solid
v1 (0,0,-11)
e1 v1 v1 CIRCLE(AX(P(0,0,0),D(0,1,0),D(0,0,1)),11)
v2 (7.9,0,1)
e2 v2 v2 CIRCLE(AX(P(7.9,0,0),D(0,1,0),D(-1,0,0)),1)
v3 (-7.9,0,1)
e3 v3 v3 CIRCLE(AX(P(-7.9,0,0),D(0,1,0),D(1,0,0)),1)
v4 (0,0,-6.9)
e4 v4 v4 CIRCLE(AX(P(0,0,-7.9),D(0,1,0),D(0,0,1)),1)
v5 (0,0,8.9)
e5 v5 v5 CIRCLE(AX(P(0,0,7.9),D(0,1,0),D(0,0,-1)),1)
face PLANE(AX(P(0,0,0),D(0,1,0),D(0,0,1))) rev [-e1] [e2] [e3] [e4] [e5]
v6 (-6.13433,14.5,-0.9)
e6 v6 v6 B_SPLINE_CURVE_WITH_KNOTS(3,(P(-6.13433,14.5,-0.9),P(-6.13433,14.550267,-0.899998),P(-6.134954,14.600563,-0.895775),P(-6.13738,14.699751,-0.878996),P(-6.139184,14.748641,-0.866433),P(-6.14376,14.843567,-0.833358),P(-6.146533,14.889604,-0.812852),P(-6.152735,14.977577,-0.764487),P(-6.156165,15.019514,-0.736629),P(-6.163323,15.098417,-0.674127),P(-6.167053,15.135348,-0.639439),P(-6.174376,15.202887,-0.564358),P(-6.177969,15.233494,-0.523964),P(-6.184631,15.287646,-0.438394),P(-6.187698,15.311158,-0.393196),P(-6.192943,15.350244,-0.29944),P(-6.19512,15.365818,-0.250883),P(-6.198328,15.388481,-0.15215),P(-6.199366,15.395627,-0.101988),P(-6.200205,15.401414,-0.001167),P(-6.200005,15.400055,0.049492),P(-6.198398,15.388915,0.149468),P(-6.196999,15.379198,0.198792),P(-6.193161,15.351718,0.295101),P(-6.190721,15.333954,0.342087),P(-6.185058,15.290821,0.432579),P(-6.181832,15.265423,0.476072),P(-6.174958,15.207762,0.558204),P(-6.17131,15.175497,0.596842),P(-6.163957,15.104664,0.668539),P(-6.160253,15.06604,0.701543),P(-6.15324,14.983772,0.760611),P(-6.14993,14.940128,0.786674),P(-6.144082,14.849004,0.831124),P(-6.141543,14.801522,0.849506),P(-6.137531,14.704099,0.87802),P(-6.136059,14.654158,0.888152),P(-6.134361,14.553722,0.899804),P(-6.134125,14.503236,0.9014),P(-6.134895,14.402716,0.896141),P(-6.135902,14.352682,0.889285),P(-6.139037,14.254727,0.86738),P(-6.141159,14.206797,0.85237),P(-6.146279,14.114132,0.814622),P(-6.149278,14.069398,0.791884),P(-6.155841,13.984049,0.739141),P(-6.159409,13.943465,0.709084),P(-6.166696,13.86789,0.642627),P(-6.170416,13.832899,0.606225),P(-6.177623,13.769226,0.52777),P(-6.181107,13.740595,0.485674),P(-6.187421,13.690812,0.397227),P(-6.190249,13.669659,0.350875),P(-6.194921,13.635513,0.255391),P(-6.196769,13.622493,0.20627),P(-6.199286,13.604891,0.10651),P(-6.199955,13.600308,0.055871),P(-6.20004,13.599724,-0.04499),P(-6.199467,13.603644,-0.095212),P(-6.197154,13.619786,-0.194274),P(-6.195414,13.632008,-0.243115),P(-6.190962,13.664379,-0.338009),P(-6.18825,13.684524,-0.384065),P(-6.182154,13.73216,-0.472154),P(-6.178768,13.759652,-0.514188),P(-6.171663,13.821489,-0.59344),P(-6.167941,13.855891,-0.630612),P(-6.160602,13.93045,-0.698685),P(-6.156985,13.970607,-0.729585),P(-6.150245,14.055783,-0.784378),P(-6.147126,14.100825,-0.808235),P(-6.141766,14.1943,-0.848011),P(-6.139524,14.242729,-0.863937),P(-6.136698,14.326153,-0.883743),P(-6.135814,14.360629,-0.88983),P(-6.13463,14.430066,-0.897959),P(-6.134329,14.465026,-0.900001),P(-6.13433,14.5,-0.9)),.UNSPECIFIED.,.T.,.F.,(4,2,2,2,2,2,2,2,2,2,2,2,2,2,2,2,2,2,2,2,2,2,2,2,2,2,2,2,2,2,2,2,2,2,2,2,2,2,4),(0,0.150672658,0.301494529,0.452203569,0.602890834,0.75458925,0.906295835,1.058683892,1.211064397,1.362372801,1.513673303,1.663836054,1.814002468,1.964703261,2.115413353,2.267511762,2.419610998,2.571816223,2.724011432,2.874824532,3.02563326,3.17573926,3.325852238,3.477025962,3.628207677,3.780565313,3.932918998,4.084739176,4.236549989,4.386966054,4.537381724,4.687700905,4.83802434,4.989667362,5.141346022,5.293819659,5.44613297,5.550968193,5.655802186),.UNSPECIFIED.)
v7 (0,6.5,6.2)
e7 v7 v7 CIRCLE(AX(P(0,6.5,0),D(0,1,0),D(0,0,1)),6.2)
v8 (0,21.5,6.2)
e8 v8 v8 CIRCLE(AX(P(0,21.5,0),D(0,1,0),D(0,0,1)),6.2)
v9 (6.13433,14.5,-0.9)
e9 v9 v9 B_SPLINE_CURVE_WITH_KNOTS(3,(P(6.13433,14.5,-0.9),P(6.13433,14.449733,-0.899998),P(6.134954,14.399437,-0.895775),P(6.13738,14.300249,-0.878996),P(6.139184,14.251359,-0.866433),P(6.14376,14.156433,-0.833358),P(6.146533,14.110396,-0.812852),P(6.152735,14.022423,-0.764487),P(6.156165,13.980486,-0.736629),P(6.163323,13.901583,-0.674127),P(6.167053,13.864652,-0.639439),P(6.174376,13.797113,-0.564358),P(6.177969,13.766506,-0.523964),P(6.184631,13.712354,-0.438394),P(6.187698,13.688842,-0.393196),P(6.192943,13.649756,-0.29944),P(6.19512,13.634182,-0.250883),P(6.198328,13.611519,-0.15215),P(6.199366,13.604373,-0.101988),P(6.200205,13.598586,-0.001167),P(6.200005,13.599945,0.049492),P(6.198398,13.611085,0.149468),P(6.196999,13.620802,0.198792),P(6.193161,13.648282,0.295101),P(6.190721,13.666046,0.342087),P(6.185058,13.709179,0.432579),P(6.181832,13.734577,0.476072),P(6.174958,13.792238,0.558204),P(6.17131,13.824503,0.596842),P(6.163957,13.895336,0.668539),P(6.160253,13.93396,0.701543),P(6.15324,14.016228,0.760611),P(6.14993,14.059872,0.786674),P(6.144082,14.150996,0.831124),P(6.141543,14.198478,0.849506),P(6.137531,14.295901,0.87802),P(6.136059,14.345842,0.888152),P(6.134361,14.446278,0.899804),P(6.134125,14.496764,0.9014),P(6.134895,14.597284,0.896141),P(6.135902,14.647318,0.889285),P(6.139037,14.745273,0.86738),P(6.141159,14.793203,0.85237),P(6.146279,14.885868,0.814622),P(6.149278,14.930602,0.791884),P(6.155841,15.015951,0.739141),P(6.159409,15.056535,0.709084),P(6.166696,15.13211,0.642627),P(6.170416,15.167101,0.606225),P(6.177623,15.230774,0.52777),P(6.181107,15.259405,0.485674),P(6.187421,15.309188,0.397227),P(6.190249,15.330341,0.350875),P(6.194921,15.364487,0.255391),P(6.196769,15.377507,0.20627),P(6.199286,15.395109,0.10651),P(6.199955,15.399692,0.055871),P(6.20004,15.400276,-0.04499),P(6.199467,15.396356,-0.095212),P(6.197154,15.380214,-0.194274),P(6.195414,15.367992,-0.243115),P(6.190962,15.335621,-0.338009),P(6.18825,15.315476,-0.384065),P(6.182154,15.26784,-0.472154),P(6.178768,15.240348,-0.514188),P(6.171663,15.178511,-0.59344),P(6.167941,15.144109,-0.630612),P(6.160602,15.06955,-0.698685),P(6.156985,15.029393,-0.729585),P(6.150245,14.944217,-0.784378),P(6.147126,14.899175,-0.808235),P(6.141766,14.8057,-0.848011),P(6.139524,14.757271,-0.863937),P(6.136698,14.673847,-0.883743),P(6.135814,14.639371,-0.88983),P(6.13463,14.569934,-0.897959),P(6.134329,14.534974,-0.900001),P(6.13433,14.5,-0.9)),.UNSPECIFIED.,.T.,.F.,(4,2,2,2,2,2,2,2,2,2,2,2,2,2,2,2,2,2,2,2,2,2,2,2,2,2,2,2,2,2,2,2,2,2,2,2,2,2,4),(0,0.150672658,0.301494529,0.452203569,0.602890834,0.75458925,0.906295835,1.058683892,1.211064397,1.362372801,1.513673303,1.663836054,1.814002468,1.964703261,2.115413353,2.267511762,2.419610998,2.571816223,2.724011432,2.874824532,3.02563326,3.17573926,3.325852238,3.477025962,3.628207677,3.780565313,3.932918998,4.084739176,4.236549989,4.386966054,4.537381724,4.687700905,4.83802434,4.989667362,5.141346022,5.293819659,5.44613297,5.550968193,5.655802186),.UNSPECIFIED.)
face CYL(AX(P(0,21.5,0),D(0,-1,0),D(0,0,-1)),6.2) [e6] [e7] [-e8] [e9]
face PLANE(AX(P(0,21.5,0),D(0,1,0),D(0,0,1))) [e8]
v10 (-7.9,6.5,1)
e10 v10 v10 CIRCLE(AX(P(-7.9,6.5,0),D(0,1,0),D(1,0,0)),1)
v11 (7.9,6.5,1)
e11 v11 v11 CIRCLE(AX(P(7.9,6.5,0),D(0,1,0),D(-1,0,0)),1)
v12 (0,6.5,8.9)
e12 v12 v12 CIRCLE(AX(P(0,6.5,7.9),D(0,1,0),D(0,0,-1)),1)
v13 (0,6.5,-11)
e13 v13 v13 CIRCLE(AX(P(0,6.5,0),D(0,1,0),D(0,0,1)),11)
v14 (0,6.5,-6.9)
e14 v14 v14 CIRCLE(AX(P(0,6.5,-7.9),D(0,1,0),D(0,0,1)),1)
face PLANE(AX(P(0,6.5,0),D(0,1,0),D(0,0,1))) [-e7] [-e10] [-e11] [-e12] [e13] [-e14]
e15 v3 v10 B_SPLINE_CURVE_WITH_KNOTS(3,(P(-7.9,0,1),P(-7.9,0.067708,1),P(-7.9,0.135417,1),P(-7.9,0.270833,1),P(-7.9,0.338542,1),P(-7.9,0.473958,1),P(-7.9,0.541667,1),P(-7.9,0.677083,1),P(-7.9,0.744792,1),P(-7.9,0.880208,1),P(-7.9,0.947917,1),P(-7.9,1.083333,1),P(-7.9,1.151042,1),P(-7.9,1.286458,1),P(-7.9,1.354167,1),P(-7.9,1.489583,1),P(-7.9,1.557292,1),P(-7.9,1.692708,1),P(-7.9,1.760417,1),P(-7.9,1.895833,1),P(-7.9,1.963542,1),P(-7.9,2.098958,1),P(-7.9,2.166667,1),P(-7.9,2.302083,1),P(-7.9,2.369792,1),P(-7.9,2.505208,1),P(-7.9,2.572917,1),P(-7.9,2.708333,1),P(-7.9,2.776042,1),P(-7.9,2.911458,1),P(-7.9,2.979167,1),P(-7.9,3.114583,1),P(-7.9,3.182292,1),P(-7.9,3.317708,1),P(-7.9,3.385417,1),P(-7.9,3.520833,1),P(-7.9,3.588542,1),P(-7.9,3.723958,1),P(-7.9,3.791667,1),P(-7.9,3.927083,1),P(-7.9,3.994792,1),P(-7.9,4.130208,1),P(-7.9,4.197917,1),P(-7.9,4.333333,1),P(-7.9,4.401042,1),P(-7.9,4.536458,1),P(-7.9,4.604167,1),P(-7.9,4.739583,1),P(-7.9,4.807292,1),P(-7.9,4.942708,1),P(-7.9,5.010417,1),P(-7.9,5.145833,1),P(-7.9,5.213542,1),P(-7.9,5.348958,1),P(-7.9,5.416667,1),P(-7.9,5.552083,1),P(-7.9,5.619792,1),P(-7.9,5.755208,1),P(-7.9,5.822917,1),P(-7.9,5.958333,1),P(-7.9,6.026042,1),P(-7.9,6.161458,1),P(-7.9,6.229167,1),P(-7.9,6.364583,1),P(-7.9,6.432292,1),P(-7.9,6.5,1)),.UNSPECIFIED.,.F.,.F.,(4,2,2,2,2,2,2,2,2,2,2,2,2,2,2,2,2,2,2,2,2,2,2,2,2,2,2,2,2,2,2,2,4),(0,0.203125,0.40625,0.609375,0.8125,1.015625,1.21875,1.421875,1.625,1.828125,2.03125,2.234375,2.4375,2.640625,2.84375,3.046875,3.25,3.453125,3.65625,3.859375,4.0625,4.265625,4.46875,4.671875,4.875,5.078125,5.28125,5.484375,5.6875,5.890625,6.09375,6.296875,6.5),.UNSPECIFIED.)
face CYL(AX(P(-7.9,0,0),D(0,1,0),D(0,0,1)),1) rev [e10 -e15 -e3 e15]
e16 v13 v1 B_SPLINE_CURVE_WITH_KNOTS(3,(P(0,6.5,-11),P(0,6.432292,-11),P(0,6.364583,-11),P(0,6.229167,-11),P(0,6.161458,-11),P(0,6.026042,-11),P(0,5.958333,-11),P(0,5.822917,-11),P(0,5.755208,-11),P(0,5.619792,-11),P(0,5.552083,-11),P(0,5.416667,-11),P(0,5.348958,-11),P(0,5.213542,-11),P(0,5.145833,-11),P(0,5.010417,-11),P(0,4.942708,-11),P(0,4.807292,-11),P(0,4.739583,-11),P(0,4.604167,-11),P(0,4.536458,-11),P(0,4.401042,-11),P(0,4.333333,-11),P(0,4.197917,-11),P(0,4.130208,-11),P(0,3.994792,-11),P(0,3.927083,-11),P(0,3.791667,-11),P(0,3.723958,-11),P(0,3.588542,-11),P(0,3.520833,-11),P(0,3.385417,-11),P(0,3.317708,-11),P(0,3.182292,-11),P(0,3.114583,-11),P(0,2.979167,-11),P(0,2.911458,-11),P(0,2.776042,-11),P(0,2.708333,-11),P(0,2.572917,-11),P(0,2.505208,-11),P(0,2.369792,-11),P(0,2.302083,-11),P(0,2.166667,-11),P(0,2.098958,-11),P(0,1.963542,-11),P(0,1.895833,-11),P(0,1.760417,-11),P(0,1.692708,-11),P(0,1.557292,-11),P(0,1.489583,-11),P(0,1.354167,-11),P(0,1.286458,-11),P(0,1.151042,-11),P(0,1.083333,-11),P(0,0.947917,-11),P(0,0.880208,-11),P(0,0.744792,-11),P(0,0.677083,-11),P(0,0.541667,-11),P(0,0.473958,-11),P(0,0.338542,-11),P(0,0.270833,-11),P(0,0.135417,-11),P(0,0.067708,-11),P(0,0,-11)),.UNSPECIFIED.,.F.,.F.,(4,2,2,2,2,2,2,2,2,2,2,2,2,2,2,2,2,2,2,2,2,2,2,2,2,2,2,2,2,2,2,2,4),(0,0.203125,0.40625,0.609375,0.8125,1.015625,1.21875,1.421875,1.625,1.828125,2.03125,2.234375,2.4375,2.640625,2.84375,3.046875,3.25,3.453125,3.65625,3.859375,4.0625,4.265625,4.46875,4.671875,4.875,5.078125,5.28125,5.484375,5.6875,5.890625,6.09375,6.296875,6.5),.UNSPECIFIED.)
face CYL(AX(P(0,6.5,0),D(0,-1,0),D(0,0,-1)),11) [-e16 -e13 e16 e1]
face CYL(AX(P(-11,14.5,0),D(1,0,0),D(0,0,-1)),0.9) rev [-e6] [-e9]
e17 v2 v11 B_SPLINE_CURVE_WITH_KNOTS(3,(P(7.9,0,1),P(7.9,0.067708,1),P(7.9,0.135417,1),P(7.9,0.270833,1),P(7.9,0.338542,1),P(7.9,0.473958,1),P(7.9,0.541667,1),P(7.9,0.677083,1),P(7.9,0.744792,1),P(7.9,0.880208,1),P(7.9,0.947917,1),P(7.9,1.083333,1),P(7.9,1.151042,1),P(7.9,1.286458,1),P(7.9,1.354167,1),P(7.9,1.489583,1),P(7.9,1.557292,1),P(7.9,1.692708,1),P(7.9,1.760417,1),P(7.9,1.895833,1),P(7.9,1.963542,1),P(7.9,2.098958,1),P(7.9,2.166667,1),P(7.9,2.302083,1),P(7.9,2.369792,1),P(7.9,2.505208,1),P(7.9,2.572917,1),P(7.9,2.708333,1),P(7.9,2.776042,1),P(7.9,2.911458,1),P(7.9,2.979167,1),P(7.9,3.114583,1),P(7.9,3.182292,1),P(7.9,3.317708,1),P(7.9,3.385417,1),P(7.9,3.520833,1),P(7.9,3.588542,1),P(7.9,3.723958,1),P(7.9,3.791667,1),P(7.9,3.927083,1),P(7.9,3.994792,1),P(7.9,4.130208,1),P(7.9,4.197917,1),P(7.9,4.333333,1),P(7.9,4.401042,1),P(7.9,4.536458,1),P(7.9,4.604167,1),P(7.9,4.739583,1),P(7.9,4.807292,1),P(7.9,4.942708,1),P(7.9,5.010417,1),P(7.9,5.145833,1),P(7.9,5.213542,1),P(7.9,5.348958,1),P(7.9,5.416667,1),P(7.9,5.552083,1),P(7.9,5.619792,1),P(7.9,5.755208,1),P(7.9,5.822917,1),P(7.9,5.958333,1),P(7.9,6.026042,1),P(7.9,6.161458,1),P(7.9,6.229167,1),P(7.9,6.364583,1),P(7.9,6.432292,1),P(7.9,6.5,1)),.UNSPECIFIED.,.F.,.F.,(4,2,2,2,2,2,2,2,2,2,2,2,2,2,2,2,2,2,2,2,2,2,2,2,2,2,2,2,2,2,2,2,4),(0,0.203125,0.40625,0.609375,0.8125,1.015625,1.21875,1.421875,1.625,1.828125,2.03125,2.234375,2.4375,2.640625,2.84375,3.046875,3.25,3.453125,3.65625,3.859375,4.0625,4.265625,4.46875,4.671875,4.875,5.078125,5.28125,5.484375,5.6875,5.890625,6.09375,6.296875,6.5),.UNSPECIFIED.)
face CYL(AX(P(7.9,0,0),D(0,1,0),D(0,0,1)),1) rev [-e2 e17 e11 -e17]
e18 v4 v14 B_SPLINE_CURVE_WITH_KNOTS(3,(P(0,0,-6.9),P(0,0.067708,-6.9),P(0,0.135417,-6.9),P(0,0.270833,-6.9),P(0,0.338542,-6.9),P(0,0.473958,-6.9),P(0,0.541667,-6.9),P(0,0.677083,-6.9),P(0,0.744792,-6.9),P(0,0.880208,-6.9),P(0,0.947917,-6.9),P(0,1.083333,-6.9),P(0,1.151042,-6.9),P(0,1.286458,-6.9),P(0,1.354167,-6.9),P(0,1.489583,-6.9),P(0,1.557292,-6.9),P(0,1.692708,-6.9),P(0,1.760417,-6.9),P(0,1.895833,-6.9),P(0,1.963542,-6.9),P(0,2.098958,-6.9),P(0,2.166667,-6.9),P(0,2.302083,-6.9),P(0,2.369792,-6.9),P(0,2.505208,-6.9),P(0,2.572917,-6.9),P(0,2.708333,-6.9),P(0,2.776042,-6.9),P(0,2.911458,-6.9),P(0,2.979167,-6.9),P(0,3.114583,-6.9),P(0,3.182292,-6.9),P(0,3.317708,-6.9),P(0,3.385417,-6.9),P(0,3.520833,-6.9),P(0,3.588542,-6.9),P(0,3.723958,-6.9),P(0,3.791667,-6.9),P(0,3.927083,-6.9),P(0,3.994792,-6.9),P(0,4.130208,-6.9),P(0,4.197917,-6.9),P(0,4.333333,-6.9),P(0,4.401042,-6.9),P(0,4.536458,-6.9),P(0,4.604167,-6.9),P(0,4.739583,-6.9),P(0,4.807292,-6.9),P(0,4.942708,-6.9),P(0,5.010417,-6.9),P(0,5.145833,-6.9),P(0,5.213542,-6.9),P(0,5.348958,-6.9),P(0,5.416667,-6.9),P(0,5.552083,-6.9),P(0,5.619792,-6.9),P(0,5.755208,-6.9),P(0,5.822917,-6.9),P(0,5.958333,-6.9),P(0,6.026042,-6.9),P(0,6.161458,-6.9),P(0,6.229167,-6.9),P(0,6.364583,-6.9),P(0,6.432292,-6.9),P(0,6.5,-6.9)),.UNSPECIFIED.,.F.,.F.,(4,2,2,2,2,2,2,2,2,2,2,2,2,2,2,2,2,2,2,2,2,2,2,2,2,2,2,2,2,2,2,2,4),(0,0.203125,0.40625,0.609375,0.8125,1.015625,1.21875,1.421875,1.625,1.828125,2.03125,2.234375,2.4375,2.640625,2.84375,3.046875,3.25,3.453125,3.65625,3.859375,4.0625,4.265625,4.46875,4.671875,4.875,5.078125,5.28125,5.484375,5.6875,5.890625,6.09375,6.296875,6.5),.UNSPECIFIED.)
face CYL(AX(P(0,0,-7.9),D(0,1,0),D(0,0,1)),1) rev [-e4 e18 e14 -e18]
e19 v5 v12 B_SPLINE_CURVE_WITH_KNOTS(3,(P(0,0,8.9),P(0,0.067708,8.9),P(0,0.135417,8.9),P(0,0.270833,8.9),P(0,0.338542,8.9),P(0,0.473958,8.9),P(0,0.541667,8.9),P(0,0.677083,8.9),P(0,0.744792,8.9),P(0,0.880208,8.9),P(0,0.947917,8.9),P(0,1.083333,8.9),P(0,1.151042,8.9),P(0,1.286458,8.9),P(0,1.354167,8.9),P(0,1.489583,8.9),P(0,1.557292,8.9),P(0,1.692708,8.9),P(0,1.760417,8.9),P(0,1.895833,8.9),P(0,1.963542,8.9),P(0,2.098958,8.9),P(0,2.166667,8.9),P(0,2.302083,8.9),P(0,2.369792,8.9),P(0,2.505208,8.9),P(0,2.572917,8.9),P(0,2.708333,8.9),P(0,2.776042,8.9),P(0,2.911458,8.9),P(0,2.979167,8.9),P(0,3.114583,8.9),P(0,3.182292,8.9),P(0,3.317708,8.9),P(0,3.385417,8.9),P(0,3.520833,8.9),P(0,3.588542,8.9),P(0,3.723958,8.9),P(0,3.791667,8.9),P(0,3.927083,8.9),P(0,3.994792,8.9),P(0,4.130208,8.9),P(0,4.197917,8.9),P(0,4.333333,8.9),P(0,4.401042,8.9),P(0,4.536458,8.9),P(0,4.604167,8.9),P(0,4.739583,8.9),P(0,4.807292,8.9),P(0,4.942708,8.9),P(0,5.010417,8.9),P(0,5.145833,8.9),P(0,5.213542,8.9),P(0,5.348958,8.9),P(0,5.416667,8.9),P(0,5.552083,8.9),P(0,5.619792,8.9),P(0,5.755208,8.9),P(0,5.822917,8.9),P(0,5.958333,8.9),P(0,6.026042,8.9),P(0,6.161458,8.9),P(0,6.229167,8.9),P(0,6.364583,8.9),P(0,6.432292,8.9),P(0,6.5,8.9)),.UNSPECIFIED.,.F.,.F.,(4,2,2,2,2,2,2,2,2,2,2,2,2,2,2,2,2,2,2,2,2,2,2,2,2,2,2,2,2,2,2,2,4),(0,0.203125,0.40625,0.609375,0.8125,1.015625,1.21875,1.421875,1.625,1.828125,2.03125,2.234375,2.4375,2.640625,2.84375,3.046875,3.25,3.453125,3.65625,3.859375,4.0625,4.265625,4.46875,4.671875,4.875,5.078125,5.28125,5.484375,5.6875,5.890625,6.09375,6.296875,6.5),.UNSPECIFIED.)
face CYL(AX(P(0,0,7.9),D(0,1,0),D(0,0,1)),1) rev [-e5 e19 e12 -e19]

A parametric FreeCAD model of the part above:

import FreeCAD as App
import Part
import Sketcher

V = App.Vector
Q = App.Units.Quantity

doc = App.newDocument("Part")
params = doc.addObject("Spreadsheet::Sheet", "Params")
for row, (alias, value) in enumerate([
    ("sketch1_diameter", "22 mm"),
    ("pad1_length", "6.5 mm"),
    ("sketch2_diameter", "2 mm"),
    ("sketch3_diameter", "12.4 mm"),
    ("pad2_length", "15 mm"),
    ("sketch4_diameter", "1.8 mm"),
], start=1):
    params.set(f"A{row}", alias)
    params.set(f"B{row}", "=" + value)
    params.setAlias(f"B{row}", alias)

body = doc.addObject("PartDesign::Body", "Body")

sketch1 = doc.addObject("Sketcher::SketchObject", "Sketch")
body.addObject(sketch1)
sketch1.AttachmentSupport = (doc.XZ_Plane, [""])
sketch1.MapMode = "FlatFace"
sketch1.addGeometry(Part.Circle(V(0, 0, 0), V(0, 0, 1), 11), False)
sketch1.addConstraint(Sketcher.Constraint("Coincident", 0, 3, -1, 1))
sketch1.addConstraint(Sketcher.Constraint("Diameter", 0, Q("22 mm")))
sketch1.setExpression("Constraints[1]", "Params.sketch1_diameter")
pad1 = doc.addObject("PartDesign::Pad", "Pad")
body.addObject(pad1)
pad1.Profile = sketch1
pad1.setExpression("Length", "Params.pad1_length")
pad1.Reversed = True

sketch2 = doc.addObject("Sketcher::SketchObject", "Sketch001")
body.addObject(sketch2)
sketch2.AttachmentSupport = (doc.XZ_Plane, [""])
sketch2.MapMode = "FlatFace"
sketch2.AttachmentOffset = App.Placement(V(0, 0, -6.5), App.Rotation())
sketch2.addGeometry(Part.Circle(V(0, -7.9, 0), V(0, 0, 1), 1), False)
sketch2.addConstraint(Sketcher.Constraint("PointOnObject", 0, 3, -2))
sketch2.addConstraint(Sketcher.Constraint("Diameter", 0, Q("2 mm")))
sketch2.addConstraint(Sketcher.Constraint("DistanceY", 0, 3, -1, 1, Q("7.9 mm")))
sketch2.setExpression("Constraints[1]", "Params.sketch2_diameter")
pocket1 = doc.addObject("PartDesign::Pocket", "Pocket")
body.addObject(pocket1)
pocket1.Profile = sketch2
pocket1.Type = "ThroughAll"
pocket1.Reversed = True
doc.recompute()

polarpattern = doc.addObject("PartDesign::PolarPattern", "PolarPattern")
body.addObject(polarpattern)
polarpattern.Originals = [pocket1]
polarpattern.Axis = (doc.Y_Axis, [""])
polarpattern.Angle = 360
polarpattern.Occurrences = 4
body.Tip = polarpattern

sketch3 = doc.addObject("Sketcher::SketchObject", "Sketch002")
body.addObject(sketch3)
sketch3.AttachmentSupport = (doc.XZ_Plane, [""])
sketch3.MapMode = "FlatFace"
sketch3.AttachmentOffset = App.Placement(V(0, 0, -6.5), App.Rotation())
sketch3.addGeometry(Part.Circle(V(0, 0, 0), V(0, 0, 1), 6), False)
sketch3.addConstraint(Sketcher.Constraint("Coincident", 0, 3, -1, 1))
sketch3.addConstraint(Sketcher.Constraint("Diameter", 0, Q("12.4 mm")))
sketch3.setExpression("Constraints[1]", "Params.sketch3_diameter")
pad2 = doc.addObject("PartDesign::Pad", "Pad001")
body.addObject(pad2)
pad2.Profile = sketch3
pad2.setExpression("Length", "Params.pad2_length")
pad2.Reversed = True

sketch4 = doc.addObject("Sketcher::SketchObject", "Sketch003")
body.addObject(sketch4)
sketch4.AttachmentSupport = (doc.YZ_Plane, [""])
sketch4.MapMode = "FlatFace"
sketch4.addGeometry(Part.Circle(V(14.5, 0, 0), V(0, 0, 1), 0.9), False)
sketch4.addConstraint(Sketcher.Constraint("PointOnObject", 0, 3, -1))
sketch4.addConstraint(Sketcher.Constraint("Diameter", 0, Q("1.8 mm")))
sketch4.addConstraint(Sketcher.Constraint("DistanceX", -1, 1, 0, 3, Q("14.5 mm")))
sketch4.setExpression("Constraints[1]", "Params.sketch4_diameter")
pocket2 = doc.addObject("PartDesign::Pocket", "Pocket001")
body.addObject(pocket2)
pocket2.Profile = sketch4
pocket2.Type = "ThroughAll"
pocket2.Midplane = True

doc.recompute()
